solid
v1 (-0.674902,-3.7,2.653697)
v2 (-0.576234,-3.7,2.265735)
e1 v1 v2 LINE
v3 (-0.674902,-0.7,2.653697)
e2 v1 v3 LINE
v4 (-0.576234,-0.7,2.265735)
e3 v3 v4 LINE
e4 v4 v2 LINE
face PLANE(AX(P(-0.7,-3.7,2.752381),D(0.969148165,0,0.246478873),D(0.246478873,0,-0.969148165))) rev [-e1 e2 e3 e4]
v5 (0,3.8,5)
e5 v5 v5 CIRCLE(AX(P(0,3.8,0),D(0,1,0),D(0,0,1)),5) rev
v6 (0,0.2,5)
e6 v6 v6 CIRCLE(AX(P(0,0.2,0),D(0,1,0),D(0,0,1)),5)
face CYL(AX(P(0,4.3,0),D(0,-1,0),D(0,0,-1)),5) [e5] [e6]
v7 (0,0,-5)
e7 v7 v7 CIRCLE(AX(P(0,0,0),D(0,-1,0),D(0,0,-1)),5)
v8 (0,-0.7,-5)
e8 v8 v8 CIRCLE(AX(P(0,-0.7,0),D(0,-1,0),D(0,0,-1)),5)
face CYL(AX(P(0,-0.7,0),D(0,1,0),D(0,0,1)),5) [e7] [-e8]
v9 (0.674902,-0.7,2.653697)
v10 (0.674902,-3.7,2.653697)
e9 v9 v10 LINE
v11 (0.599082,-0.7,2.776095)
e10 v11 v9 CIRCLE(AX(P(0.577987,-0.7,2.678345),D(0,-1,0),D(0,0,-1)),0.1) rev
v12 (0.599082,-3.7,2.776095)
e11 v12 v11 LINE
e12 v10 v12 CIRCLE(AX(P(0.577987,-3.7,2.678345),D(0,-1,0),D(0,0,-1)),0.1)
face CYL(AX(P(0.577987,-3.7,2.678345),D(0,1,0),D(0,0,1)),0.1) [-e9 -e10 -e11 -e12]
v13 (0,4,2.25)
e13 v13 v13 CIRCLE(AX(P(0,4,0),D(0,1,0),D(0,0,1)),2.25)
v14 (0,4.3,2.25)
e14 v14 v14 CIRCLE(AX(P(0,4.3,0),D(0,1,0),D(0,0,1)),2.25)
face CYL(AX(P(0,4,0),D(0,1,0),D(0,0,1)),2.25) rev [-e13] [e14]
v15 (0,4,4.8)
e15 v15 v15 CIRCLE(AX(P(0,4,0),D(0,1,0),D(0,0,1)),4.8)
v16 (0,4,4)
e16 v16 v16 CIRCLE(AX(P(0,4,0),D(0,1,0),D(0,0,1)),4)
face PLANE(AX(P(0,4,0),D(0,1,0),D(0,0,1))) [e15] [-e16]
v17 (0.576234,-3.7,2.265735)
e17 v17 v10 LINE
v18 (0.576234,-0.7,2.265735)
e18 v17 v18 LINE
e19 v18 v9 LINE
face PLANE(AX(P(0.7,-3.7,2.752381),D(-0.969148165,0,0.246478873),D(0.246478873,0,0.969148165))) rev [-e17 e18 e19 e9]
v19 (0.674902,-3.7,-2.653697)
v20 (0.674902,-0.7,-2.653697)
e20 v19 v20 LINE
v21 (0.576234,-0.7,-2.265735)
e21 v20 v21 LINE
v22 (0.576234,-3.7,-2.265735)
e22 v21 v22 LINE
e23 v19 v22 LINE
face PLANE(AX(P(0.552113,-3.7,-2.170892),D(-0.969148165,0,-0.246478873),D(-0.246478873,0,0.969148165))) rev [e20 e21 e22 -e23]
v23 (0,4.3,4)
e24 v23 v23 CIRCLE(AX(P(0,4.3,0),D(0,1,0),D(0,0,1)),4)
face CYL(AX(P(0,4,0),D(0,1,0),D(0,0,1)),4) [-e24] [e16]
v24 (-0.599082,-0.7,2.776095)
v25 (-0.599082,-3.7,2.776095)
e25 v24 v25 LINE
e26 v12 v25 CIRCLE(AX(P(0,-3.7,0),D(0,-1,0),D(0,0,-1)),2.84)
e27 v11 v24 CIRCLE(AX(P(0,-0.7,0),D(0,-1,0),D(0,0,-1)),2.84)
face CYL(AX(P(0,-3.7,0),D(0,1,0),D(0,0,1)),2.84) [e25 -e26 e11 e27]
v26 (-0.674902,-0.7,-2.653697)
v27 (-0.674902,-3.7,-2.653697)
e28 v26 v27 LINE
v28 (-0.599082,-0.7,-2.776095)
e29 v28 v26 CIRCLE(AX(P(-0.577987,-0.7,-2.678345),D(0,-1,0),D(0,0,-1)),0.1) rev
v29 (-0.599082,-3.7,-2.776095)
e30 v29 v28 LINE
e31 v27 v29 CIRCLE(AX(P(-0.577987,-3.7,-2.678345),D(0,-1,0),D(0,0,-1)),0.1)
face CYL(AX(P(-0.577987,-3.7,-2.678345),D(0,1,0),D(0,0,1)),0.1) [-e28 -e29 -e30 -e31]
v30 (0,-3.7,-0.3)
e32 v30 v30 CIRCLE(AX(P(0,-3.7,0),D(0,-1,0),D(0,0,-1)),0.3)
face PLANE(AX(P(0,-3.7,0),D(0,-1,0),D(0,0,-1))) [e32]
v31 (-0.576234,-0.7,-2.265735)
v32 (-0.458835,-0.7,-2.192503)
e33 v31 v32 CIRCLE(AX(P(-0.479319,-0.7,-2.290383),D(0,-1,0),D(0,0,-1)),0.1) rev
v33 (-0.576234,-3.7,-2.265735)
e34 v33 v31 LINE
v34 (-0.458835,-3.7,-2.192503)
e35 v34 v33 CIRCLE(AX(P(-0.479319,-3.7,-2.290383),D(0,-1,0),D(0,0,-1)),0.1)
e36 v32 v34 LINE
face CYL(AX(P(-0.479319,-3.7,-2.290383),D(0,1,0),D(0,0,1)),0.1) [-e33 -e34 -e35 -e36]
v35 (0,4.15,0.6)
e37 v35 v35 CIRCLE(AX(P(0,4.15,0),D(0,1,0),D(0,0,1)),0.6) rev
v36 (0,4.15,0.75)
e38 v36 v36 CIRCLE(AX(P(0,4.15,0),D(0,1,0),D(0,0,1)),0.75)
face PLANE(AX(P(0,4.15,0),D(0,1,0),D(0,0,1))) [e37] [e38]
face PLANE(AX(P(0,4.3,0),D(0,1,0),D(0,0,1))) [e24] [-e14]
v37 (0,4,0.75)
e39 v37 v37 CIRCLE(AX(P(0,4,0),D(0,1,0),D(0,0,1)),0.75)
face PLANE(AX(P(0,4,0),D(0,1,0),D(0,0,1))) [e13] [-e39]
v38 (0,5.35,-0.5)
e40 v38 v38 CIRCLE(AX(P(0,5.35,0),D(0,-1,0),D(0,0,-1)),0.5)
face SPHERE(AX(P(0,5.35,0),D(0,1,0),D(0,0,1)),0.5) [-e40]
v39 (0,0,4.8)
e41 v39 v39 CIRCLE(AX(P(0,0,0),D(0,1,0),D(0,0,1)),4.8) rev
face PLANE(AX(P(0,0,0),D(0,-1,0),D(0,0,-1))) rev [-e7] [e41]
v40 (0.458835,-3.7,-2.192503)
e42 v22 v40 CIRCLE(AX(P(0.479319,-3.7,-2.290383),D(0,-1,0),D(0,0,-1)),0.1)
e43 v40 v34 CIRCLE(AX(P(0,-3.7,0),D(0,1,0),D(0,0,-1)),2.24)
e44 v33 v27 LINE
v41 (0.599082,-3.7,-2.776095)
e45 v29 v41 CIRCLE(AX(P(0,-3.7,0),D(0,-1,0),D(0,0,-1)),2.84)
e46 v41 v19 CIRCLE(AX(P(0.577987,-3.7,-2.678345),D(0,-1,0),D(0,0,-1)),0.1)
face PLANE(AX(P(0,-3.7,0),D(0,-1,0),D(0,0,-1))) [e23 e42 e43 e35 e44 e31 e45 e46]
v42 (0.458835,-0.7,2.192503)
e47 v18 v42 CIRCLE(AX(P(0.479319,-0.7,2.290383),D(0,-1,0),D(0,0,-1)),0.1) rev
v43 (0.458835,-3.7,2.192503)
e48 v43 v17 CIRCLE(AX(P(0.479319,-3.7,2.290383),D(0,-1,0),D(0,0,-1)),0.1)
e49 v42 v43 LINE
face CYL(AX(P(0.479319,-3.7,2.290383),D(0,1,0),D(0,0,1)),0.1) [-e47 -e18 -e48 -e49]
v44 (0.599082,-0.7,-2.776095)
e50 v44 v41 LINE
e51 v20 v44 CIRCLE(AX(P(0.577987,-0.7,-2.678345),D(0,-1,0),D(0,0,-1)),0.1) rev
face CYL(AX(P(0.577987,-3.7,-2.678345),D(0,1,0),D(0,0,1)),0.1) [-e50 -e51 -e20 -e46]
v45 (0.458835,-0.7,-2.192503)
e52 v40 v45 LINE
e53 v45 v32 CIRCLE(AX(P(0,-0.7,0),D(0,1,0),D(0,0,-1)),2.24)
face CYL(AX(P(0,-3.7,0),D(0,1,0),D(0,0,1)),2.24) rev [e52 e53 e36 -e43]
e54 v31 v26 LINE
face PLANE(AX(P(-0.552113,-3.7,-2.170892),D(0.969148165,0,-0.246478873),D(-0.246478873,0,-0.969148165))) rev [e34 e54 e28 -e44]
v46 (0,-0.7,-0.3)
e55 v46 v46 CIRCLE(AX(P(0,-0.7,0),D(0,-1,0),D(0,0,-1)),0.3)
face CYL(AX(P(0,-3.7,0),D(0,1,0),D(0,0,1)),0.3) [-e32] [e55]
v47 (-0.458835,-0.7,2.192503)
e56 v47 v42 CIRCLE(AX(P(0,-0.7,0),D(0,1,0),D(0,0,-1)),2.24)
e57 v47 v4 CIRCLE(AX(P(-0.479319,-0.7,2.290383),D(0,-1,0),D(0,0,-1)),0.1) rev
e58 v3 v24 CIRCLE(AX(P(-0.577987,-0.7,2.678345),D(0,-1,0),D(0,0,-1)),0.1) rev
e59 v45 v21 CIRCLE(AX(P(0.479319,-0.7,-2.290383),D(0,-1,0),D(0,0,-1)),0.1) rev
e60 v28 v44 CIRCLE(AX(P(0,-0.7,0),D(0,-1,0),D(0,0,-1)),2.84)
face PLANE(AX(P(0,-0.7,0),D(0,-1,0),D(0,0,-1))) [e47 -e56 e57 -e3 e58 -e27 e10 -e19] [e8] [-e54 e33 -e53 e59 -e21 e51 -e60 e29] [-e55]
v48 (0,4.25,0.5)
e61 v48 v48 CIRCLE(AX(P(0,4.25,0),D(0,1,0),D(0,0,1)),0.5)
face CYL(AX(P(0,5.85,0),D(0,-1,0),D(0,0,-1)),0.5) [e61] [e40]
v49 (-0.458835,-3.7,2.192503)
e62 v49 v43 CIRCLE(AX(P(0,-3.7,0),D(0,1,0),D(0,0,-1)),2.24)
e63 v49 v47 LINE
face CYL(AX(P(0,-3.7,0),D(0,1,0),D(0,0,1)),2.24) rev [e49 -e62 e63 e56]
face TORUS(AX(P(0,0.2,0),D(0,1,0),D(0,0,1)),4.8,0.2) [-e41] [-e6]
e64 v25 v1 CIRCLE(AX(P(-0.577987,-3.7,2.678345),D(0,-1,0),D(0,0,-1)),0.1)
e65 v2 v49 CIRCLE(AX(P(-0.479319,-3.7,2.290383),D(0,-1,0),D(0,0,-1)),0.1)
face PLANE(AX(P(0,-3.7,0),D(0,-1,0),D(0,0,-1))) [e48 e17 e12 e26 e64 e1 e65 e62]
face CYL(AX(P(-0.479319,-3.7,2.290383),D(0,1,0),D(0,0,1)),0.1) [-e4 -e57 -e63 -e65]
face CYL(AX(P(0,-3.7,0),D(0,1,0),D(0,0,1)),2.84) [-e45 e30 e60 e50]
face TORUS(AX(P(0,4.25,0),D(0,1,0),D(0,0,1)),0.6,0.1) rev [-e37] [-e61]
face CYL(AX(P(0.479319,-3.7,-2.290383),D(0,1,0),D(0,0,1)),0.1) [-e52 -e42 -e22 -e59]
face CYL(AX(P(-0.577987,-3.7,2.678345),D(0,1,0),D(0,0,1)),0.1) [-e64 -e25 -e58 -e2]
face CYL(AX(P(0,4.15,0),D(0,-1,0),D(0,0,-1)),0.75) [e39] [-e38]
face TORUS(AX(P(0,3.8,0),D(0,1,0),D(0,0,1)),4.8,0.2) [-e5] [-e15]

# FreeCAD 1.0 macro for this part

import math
import FreeCAD as App
import Part
import Sketcher
from FreeCAD import Vector


def edges_at(feature, points):
    """Names of the edges that pass closest to the given points."""
    edges = feature.Shape.Edges
    near = lambda p: min(range(len(edges)), key=lambda i: edges[i].distToShape(Part.Vertex(*p))[0])
    return sorted({f"Edge{near(p) + 1}" for p in points})

doc = App.newDocument("Part")
body = doc.addObject("PartDesign::Body", "Body")

# Sketch on XZ plane
sketch1 = body.newObject("Sketcher::SketchObject", "Sketch")
sketch1.AttachmentSupport = (doc.getObject("XZ_Plane"), [""])
sketch1.MapMode = "FlatFace"
sketch1.addGeometry(Part.Circle(Vector(0, 0, 0), Vector(0, 0, 1), 5), False)
sketch1.addConstraint([
    Sketcher.Constraint("Coincident", 0, 3, -1, 1),
    Sketcher.Constraint("Diameter", 0, 10.0),
])
pad1 = body.newObject("PartDesign::Pad", "Pad")
pad1.Profile = sketch1
pad1.Length = 4.3
pad1.Reversed = True

# Sketch on XZ plane
sketch2 = body.newObject("Sketcher::SketchObject", "Sketch001")
sketch2.AttachmentSupport = (doc.getObject("XZ_Plane"), [""])
sketch2.MapMode = "FlatFace"
sketch2.AttachmentOffset = App.Placement(Vector(0, 0, -4.3), App.Rotation())
sketch2.addGeometry([
    Part.Circle(Vector(0, 0, 0), Vector(0, 0, 1), 5),
    Part.Circle(Vector(0, 0, 0), Vector(0, 0, 1), 4),
    Part.Circle(Vector(0, 0, 0), Vector(0, 0, 1), 2.2),
], False)
sketch2.addConstraint([
    Sketcher.Constraint("Coincident", 0, 3, -1, 1),
    Sketcher.Constraint("Coincident", 1, 3, -1, 1),
    Sketcher.Constraint("Coincident", 2, 3, -1, 1),
    Sketcher.Constraint("Diameter", 0, 10.0),
    Sketcher.Constraint("Diameter", 1, 8.0),
    Sketcher.Constraint("Diameter", 2, 4.5),
])
pocket1 = body.newObject("PartDesign::Pocket", "Pocket")
pocket1.Profile = sketch2
pocket1.Length = 0.3
pocket1.Reversed = True

# Sketch on XZ plane
sketch3 = body.newObject("Sketcher::SketchObject", "Sketch002")
sketch3.AttachmentSupport = (doc.getObject("XZ_Plane"), [""])
sketch3.MapMode = "FlatFace"
sketch3.AttachmentOffset = App.Placement(Vector(0, 0, -4), App.Rotation())
sketch3.addGeometry(Part.Circle(Vector(0, 0, 0), Vector(0, 0, 1), 0.8), False)
sketch3.addConstraint([
    Sketcher.Constraint("Coincident", 0, 3, -1, 1),
    Sketcher.Constraint("Diameter", 0, 1.5),
])
pad2 = body.newObject("PartDesign::Pad", "Pad001")
pad2.Profile = sketch3
pad2.Length = 0.15
pad2.Reversed = True

# Sketch on XZ plane
sketch4 = body.newObject("Sketcher::SketchObject", "Sketch003")
sketch4.AttachmentSupport = (doc.getObject("XZ_Plane"), [""])
sketch4.MapMode = "FlatFace"
sketch4.AttachmentOffset = App.Placement(Vector(0, 0, -4.15), App.Rotation())
sketch4.addGeometry(Part.Circle(Vector(0, 0, 0), Vector(0, 0, 1), 0.5), False)
sketch4.addConstraint([
    Sketcher.Constraint("Coincident", 0, 3, -1, 1),
    Sketcher.Constraint("Diameter", 0, 1.0),
])
pad3 = body.newObject("PartDesign::Pad", "Pad002")
pad3.Profile = sketch4
pad3.Length = 1.7
pad3.Reversed = True
doc.recompute()

fillet = body.newObject("PartDesign::Fillet", "Fillet")
fillet.Base = (pad3, edges_at(pad3, [(-0.5, 5.85, 0)]))
fillet.Radius = 0.5
doc.recompute()

fillet2 = body.newObject("PartDesign::Fillet", "Fillet001")
fillet2.Base = (fillet, edges_at(fillet, [(-5, 0, 0), (-5, 4, 0)]))
fillet2.Radius = 0.2
doc.recompute()

fillet3 = body.newObject("PartDesign::Fillet", "Fillet002")
fillet3.Base = (fillet2, edges_at(fillet2, [(-0.5, 4.15, 0)]))
fillet3.Radius = 0.1

# Sketch on XZ plane
sketch5 = body.newObject("Sketcher::SketchObject", "Sketch004")
sketch5.AttachmentSupport = (doc.getObject("XZ_Plane"), [""])
sketch5.MapMode = "FlatFace"
sketch5.addGeometry(Part.Circle(Vector(0, 0, 0), Vector(0, 0, 1), 5), False)
sketch5.addConstraint([
    Sketcher.Constraint("Coincident", 0, 3, -1, 1),
    Sketcher.Constraint("Diameter", 0, 10.0),
])
pad4 = body.newObject("PartDesign::Pad", "Pad003")
pad4.Profile = sketch5
pad4.Length = 0.7

# Sketch on XZ plane
sketch6 = body.newObject("Sketcher::SketchObject", "Sketch005")
sketch6.AttachmentSupport = (doc.getObject("XZ_Plane"), [""])
sketch6.MapMode = "FlatFace"
sketch6.AttachmentOffset = App.Placement(Vector(0, 0, 0.7), App.Rotation())
sketch6.addGeometry([
    Part.LineSegment(Vector(0.6, 2.2, 0), Vector(0.7, 2.8, 0)),  # 0
    Part.ArcOfCircle(Part.Circle(Vector(0, 0, 0), Vector(0, 0, 1), 2.8), math.radians(76), math.radians(104)),  # 1
    Part.LineSegment(Vector(-0.7, 2.8, 0), Vector(-0.6, 2.2, 0)),  # 2
    Part.ArcOfCircle(Part.Circle(Vector(0, 0, 0), Vector(0, 0, 1), 2.2), math.radians(76), math.radians(104)),  # 3
    Part.LineSegment(Vector(0.7, -2.8, 0), Vector(0.6, -2.2, 0)),  # 4
    Part.ArcOfCircle(Part.Circle(Vector(0, 0, 0), Vector(0, 0, 1), 2.2), math.radians(-104), math.radians(-76)),  # 5
    Part.LineSegment(Vector(-0.6, -2.2, 0), Vector(-0.7, -2.8, 0)),  # 6
    Part.ArcOfCircle(Part.Circle(Vector(0, 0, 0), Vector(0, 0, 1), 2.8), math.radians(-104), math.radians(-76)),  # 7
], False)
sketch6.addConstraint([
    Sketcher.Constraint("Coincident", 0, 2, 1, 1),
    Sketcher.Constraint("Coincident", 1, 2, 2, 1),
    Sketcher.Constraint("Coincident", 2, 2, 3, 2),
    Sketcher.Constraint("Coincident", 3, 1, 0, 1),
    Sketcher.Constraint("Coincident", 4, 2, 5, 2),
    Sketcher.Constraint("Coincident", 5, 1, 6, 1),
    Sketcher.Constraint("Coincident", 6, 2, 7, 1),
    Sketcher.Constraint("Coincident", 7, 2, 4, 1),
    Sketcher.Constraint("Coincident", 1, 3, -1, 1),
    Sketcher.Constraint("Coincident", 3, 3, -1, 1),
    Sketcher.Constraint("Coincident", 5, 3, -1, 1),
    Sketcher.Constraint("Coincident", 7, 3, -1, 1),
    Sketcher.Constraint("Equal", 3, 5),
    Sketcher.Constraint("Equal", 1, 7),
    Sketcher.Constraint("Parallel", 2, 4),
    Sketcher.Constraint("Parallel", 0, 6),
    Sketcher.Constraint("Horizontal", 0, 2, 1, 2),
    Sketcher.Constraint("Horizontal", 2, 2, 3, 1),
    Sketcher.Constraint("Horizontal", 4, 2, 5, 1),
    Sketcher.Constraint("Vertical", 3, 1, 4, 2),
    Sketcher.Constraint("Radius", 1, 2.84),
    Sketcher.Constraint("Radius", 3, 2.24),
    Sketcher.Constraint("DistanceX", -1, 1, 0, 2, 0.7),
    Sketcher.Constraint("DistanceY", -1, 1, 2, 2, 2.170892),
])
pad5 = body.newObject("PartDesign::Pad", "Pad004")
pad5.Profile = sketch6
pad5.Length = 3
doc.recompute()

fillet4 = body.newObject("PartDesign::Fillet", "Fillet003")
fillet4.Base = (pad5, edges_at(pad5, [
    (0.7, -2.2, 2.752),
    (-0.7, -2.2, 2.752),
    (-0.552, -2.2, 2.171),
    (0.552, -2.2, 2.171),
    (-0.7, -2.2, -2.752),
    (0.7, -2.2, -2.752),
    (0.552, -2.2, -2.171),
    (-0.552, -2.2, -2.171),
]))
fillet4.Radius = 0.1

# Sketch on XZ plane
sketch7 = body.newObject("Sketcher::SketchObject", "Sketch006")
sketch7.AttachmentSupport = (doc.getObject("XZ_Plane"), [""])
sketch7.MapMode = "FlatFace"
sketch7.AttachmentOffset = App.Placement(Vector(0, 0, 0.7), App.Rotation())
sketch7.addGeometry(Part.Circle(Vector(0, 0, 0), Vector(0, 0, 1), 0.3), False)
sketch7.addConstraint([
    Sketcher.Constraint("Coincident", 0, 3, -1, 1),
    Sketcher.Constraint("Diameter", 0, 0.6),
])
pad6 = body.newObject("PartDesign::Pad", "Pad005")
pad6.Profile = sketch7
pad6.Length = 3

doc.recompute()
